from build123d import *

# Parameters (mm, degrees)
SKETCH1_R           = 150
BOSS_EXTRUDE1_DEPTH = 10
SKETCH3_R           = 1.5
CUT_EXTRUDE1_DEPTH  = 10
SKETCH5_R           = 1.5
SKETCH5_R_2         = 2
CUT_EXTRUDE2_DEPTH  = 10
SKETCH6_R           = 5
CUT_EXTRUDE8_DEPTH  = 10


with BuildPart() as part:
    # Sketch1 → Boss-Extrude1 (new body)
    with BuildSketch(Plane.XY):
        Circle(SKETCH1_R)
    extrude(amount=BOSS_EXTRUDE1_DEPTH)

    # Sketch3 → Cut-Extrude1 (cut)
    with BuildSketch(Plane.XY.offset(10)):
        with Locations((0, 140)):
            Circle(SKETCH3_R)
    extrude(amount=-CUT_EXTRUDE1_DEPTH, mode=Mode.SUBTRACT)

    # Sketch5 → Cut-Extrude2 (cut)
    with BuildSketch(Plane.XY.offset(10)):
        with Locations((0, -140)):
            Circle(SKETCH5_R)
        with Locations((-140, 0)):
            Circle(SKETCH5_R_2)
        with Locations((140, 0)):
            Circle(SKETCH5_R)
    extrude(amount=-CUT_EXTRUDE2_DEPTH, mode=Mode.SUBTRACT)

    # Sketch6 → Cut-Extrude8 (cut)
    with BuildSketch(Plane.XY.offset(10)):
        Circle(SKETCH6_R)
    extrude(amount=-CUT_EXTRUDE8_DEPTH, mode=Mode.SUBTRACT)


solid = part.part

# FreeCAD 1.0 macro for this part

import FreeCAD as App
import Part
import Sketcher

doc = App.newDocument("Part")
body = doc.addObject("PartDesign::Body", "Body")

sketch1 = body.newObject("Sketcher::SketchObject", "Sketch")
sketch1.AttachmentSupport = (doc.getObject("XY_Plane"), [""])
sketch1.MapMode = "FlatFace"
sketch1.addGeometry(Part.Circle(App.Vector(0, 0, 0), App.Vector(0, 0, 1), 150), False)
sketch1.addConstraint([
    Sketcher.Constraint("Coincident", 0, 3, -1, 1),
    Sketcher.Constraint("Diameter", 0, 300.0),
])
pad1 = body.newObject("PartDesign::Pad", "Pad")
pad1.Profile = sketch1
pad1.Length = 10

sketch2 = body.newObject("Sketcher::SketchObject", "Sketch001")
sketch2.AttachmentSupport = (doc.getObject("XY_Plane"), [""])
sketch2.MapMode = "FlatFace"
sketch2.AttachmentOffset = App.Placement(App.Vector(0, 0, 10), App.Rotation())
sketch2.addGeometry(Part.Circle(App.Vector(0, 140, 0), App.Vector(0, 0, 1), 1.5), False)
sketch2.addConstraint([
    Sketcher.Constraint("PointOnObject", 0, 3, -2),
    Sketcher.Constraint("Diameter", 0, 3.0),
    Sketcher.Constraint("DistanceY", -1, 1, 0, 3, 140.0),
])
pocket1 = body.newObject("PartDesign::Pocket", "Pocket")
pocket1.Profile = sketch2
pocket1.Length = 10

sketch3 = body.newObject("Sketcher::SketchObject", "Sketch002")
sketch3.AttachmentSupport = (doc.getObject("XY_Plane"), [""])
sketch3.MapMode = "FlatFace"
sketch3.AttachmentOffset = App.Placement(App.Vector(0, 0, 10), App.Rotation())
sketch3.addGeometry([
    Part.Circle(App.Vector(0, -140, 0), App.Vector(0, 0, 1), 1.5),
    Part.Circle(App.Vector(-140, 0, 0), App.Vector(0, 0, 1), 2),
    Part.Circle(App.Vector(140, 0, 0), App.Vector(0, 0, 1), 1.5),
], False)
sketch3.addConstraint([
    Sketcher.Constraint("Equal", 0, 2),
    Sketcher.Constraint("Symmetric", 1, 3, 2, 3, -1, 1),
    Sketcher.Constraint("PointOnObject", 0, 3, -2),
    Sketcher.Constraint("PointOnObject", 1, 3, -1),
    Sketcher.Constraint("Diameter", 0, 3.0),
    Sketcher.Constraint("Diameter", 1, 4.0),
    Sketcher.Constraint("DistanceY", 0, 3, -1, 1, 140.0),
    Sketcher.Constraint("DistanceX", 1, 3, -1, 1, 140.0),
])
pocket2 = body.newObject("PartDesign::Pocket", "Pocket001")
pocket2.Profile = sketch3
pocket2.Length = 10

sketch4 = body.newObject("Sketcher::SketchObject", "Sketch003")
sketch4.AttachmentSupport = (doc.getObject("XY_Plane"), [""])
sketch4.MapMode = "FlatFace"
sketch4.AttachmentOffset = App.Placement(App.Vector(0, 0, 10), App.Rotation())
sketch4.addGeometry(Part.Circle(App.Vector(0, 0, 0), App.Vector(0, 0, 1), 5), False)
sketch4.addConstraint([
    Sketcher.Constraint("Coincident", 0, 3, -1, 1),
    Sketcher.Constraint("Diameter", 0, 10.0),
])
pocket3 = body.newObject("PartDesign::Pocket", "Pocket002")
pocket3.Profile = sketch4
pocket3.Length = 10

doc.recompute()
